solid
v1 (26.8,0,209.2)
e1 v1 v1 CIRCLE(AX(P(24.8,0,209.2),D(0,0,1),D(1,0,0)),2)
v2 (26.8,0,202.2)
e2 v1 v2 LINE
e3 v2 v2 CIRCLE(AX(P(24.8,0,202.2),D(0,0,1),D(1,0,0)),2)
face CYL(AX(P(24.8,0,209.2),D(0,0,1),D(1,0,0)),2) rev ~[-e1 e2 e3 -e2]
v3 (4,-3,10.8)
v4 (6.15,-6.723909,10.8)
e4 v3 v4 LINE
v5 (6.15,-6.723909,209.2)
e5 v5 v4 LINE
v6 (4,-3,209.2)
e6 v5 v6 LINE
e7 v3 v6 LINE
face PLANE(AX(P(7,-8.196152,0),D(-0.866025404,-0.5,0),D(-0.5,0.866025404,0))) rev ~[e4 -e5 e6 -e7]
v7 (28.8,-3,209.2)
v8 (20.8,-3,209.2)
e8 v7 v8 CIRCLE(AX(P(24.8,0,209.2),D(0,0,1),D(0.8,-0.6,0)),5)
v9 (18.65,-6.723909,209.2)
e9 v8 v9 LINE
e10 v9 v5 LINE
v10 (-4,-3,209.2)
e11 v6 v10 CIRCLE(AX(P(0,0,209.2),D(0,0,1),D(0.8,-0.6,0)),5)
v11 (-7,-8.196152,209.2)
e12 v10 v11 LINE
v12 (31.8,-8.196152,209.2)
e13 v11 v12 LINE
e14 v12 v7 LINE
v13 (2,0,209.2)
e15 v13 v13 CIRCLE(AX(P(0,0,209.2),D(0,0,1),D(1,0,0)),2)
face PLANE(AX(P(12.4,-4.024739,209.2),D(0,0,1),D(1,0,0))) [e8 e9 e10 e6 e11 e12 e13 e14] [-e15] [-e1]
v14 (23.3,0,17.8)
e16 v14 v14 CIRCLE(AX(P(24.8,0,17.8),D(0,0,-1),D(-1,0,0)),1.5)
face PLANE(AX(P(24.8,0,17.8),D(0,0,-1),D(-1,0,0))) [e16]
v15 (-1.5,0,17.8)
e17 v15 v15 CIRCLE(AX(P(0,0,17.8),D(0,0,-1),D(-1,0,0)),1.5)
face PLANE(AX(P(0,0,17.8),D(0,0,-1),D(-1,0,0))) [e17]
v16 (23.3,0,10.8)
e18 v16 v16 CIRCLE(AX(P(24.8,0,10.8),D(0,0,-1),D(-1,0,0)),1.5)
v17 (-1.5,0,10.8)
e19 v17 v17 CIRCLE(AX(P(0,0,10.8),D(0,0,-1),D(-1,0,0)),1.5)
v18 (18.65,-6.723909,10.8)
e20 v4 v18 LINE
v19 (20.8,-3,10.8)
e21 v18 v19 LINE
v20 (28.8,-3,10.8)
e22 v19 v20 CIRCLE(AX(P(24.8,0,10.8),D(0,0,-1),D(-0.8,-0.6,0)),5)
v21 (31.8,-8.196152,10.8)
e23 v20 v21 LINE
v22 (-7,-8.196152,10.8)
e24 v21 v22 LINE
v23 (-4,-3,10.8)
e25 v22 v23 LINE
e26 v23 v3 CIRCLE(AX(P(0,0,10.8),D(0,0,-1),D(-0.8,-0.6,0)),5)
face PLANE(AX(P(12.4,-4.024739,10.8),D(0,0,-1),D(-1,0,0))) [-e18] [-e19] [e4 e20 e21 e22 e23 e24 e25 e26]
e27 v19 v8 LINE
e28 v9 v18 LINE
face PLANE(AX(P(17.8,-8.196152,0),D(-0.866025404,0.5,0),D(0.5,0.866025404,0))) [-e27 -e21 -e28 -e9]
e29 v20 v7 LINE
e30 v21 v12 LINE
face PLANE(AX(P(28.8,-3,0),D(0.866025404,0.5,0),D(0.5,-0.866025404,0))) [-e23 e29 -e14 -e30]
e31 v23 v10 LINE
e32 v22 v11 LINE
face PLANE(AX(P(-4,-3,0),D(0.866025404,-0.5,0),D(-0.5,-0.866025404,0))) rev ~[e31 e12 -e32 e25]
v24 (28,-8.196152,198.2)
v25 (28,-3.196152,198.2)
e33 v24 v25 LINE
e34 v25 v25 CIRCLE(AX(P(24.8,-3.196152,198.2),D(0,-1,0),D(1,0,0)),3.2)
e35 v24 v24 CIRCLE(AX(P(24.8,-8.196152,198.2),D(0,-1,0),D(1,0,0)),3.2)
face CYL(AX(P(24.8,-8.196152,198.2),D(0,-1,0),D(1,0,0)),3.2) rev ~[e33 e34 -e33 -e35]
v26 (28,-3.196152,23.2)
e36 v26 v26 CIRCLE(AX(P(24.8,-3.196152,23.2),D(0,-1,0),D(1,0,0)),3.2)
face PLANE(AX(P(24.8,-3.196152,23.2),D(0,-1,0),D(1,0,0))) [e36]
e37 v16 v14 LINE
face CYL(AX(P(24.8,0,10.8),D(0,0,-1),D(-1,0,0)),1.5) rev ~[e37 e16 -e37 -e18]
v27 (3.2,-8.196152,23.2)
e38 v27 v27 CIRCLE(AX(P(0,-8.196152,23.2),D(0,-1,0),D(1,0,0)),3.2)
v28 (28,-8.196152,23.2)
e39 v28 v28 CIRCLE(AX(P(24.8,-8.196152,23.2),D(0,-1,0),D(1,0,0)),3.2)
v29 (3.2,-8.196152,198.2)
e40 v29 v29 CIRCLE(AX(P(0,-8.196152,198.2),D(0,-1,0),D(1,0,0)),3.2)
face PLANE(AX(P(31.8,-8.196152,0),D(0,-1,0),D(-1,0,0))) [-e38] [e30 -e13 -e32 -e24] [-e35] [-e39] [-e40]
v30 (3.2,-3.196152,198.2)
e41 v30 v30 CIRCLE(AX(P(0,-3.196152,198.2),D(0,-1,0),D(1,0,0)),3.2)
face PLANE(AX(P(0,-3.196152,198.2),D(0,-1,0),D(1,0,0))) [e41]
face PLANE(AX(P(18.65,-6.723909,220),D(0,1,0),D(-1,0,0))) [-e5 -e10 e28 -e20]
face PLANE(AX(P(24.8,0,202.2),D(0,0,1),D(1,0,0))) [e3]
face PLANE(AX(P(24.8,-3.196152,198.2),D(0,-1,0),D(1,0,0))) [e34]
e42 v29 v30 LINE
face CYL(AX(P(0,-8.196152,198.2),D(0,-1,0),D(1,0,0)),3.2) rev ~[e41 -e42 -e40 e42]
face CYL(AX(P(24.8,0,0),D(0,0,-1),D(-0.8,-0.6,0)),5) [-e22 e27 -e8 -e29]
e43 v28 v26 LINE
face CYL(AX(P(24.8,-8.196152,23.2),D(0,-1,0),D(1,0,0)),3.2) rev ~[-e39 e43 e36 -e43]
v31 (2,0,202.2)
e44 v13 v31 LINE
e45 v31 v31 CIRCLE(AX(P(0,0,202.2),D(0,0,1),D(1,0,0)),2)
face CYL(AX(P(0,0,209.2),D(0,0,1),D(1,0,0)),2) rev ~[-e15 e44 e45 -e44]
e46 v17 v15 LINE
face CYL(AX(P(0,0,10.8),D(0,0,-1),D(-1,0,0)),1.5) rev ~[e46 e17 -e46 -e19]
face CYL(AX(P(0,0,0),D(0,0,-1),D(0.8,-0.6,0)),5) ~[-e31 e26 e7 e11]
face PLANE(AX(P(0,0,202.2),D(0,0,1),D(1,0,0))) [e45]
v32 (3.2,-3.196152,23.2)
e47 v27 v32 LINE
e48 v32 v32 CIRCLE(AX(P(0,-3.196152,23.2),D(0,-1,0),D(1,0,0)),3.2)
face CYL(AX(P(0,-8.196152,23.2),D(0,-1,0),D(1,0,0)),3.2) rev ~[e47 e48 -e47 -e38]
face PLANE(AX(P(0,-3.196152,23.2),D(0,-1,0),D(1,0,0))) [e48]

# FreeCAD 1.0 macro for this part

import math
import FreeCAD as App
import Part
import Sketcher

V = App.Vector
Q = App.Units.Quantity

doc = App.newDocument("Part")
params = doc.addObject("Spreadsheet::Sheet", "Params")
for row, (alias, value) in enumerate([
    ("sketch1_radius", "5 mm"),
    ("sketch1_width", "14 mm"),
    ("sketch1_length", "6 mm"),
    ("pad1_length", "220 mm"),
    ("sketch2_width", "12.5 mm"),
    ("pad2_length", "220 mm"),
    ("sketch3_diameter", "2.74 mm"),
    ("pocket1_length", "7 mm"),
    ("sketch4_diameter", "2.74 mm"),
    ("pocket2_length", "7 mm"),
    ("sketch5_radius", "5 mm"),
    ("sketch5_length", "6 mm"),
    ("sketch5_width", "38.8 mm"),
    ("sketch5_width2", "12.5 mm"),
    ("pocket3_length", "10.8 mm"),
    ("sketch6_radius", "5 mm"),
    ("sketch6_length", "6 mm"),
    ("sketch6_width", "12.5 mm"),
    ("sketch6_width2", "38.8 mm"),
    ("pocket4_length", "10.8 mm"),
    ("sketch7_diameter", "4 mm"),
    ("pocket5_length", "7 mm"),
    ("sketch8_diameter", "3 mm"),
    ("pocket6_length", "7 mm"),
    ("sketch9_diameter", "6.4 mm"),
    ("pocket7_length", "5 mm"),
], start=1):
    params.set(f"A{row}", alias)
    params.set(f"B{row}", "=" + value)
    params.setAlias(f"B{row}", alias)

body = doc.addObject("PartDesign::Body", "Body")
body.AllowCompound = True

# Sketch on XY plane
sketch1 = body.newObject("Sketcher::SketchObject", "Sketch")
sketch1.AttachmentSupport = (doc.getObject("XY_Plane"), [""])
sketch1.MapMode = "FlatFace"
sketch1.addGeometry(Part.LineSegment(V(-4, -3, 0), V(-7, -8, 0)), False)
sketch1.addGeometry(Part.LineSegment(V(-7, -8, 0), V(7, -8, 0)), False)
sketch1.addGeometry(Part.LineSegment(V(7, -8, 0), V(4, -3, 0)), False)
sketch1.addGeometry(Part.ArcOfCircle(Part.Circle(V(0, 0, 0), V(0, 0, 1), 5), math.radians(-37), math.radians(217)), False)
sketch1.addGeometry(Part.LineSegment(V(32, -8, 0), V(29, -3, 0)), False)
sketch1.addGeometry(Part.ArcOfCircle(Part.Circle(V(25, 0, 0), V(0, 0, 1), 5), math.radians(-37), math.radians(217)), False)
sketch1.addGeometry(Part.LineSegment(V(21, -3, 0), V(18, -8, 0)), False)
sketch1.addGeometry(Part.LineSegment(V(18, -8, 0), V(32, -8, 0)), False)
sketch1.addConstraint(Sketcher.Constraint("Coincident", 0, 2, 1, 1))
sketch1.addConstraint(Sketcher.Constraint("Coincident", 1, 2, 2, 1))
sketch1.addConstraint(Sketcher.Constraint("Coincident", 2, 2, 3, 1))
sketch1.addConstraint(Sketcher.Constraint("Coincident", 3, 2, 0, 1))
sketch1.addConstraint(Sketcher.Constraint("Coincident", 4, 2, 5, 1))
sketch1.addConstraint(Sketcher.Constraint("Coincident", 5, 2, 6, 1))
sketch1.addConstraint(Sketcher.Constraint("Coincident", 6, 2, 7, 1))
sketch1.addConstraint(Sketcher.Constraint("Coincident", 7, 2, 4, 1))
sketch1.addConstraint(Sketcher.Constraint("Horizontal", 1))
sketch1.addConstraint(Sketcher.Constraint("Horizontal", 7))
sketch1.addConstraint(Sketcher.Constraint("Coincident", 3, 3, -1, 1))
sketch1.addConstraint(Sketcher.Constraint("Equal", 3, 5))
sketch1.addConstraint(Sketcher.Constraint("PointOnObject", 5, 3, -1))
sketch1.addConstraint(Sketcher.Constraint("Parallel", 2, 4))
sketch1.addConstraint(Sketcher.Constraint("Parallel", 0, 6))
sketch1.addConstraint(Sketcher.Constraint("Horizontal", 2, 2, 3, 2))
sketch1.addConstraint(Sketcher.Constraint("Horizontal", 3, 2, 4, 2))
sketch1.addConstraint(Sketcher.Constraint("Horizontal", 4, 2, 5, 2))
sketch1.addConstraint(Sketcher.Constraint("Horizontal", 1, 2, 6, 2))
sketch1.addConstraint(Sketcher.Constraint("Equal", 0, 2))
sketch1.addConstraint(Sketcher.Constraint("Radius", 3, 5.0))
sketch1.addConstraint(Sketcher.Constraint("DistanceX", 1, 1, 1, 2, 14.0))
sketch1.addConstraint(Sketcher.Constraint("Angle", 0, Q("-120 deg")))
sketch1.addConstraint(Sketcher.Constraint("Distance", 0, 6.0))
sketch1.addConstraint(Sketcher.Constraint("DistanceX", -1, 1, 5, 3, 24.8))
sketch1.setExpression("Constraints[20]", "Params.sketch1_radius")
sketch1.setExpression("Constraints[21]", "Params.sketch1_width")
sketch1.setExpression("Constraints[23]", "Params.sketch1_length")
pad1 = body.newObject("PartDesign::Pad", "Pad")
pad1.Profile = sketch1
pad1.setExpression("Length", "Params.pad1_length")

# Sketch on XY plane
sketch2 = body.newObject("Sketcher::SketchObject", "Sketch001")
sketch2.AttachmentSupport = (doc.getObject("XY_Plane"), [""])
sketch2.MapMode = "FlatFace"
sketch2.AttachmentOffset = App.Placement(V(0, 0, 220), App.Rotation())
sketch2.addGeometry(Part.LineSegment(V(18.6, -8.2, 0), V(18.6, -6.7, 0)), False)
sketch2.addGeometry(Part.LineSegment(V(18.6, -6.7, 0), V(6.2, -6.7, 0)), False)
sketch2.addGeometry(Part.LineSegment(V(6.2, -6.7, 0), V(6.2, -8.2, 0)), False)
sketch2.addGeometry(Part.LineSegment(V(6.2, -8.2, 0), V(18.6, -8.2, 0)), False)
sketch2.addConstraint(Sketcher.Constraint("Coincident", 0, 2, 1, 1))
sketch2.addConstraint(Sketcher.Constraint("Coincident", 1, 2, 2, 1))
sketch2.addConstraint(Sketcher.Constraint("Coincident", 2, 2, 3, 1))
sketch2.addConstraint(Sketcher.Constraint("Coincident", 3, 2, 0, 1))
sketch2.addConstraint(Sketcher.Constraint("Vertical", 0))
sketch2.addConstraint(Sketcher.Constraint("Horizontal", 1))
sketch2.addConstraint(Sketcher.Constraint("Vertical", 2))
sketch2.addConstraint(Sketcher.Constraint("Horizontal", 3))
sketch2.addConstraint(Sketcher.Constraint("DistanceX", 1, 2, 1, 1, 12.5))
sketch2.addConstraint(Sketcher.Constraint("DistanceX", -1, 1, 0, 2, 18.65))
sketch2.addConstraint(Sketcher.Constraint("DistanceY", 0, 1, 0, 2, 1.472243))
sketch2.addConstraint(Sketcher.Constraint("DistanceY", 0, 2, -1, 1, 6.723909))
sketch2.setExpression("Constraints[8]", "Params.sketch2_width")
pad2 = body.newObject("PartDesign::Pad", "Pad001")
pad2.Profile = sketch2
pad2.setExpression("Length", "Params.pad2_length")
pad2.Reversed = True

# Sketch on XY plane
sketch3 = body.newObject("Sketcher::SketchObject", "Sketch002")
sketch3.AttachmentSupport = (doc.getObject("XY_Plane"), [""])
sketch3.MapMode = "FlatFace"
sketch3.addGeometry(Part.Circle(V(0, 0, 0), V(0, 0, 1), 1.4), False)
sketch3.addGeometry(Part.Circle(V(24.8, 0, 0), V(0, 0, 1), 1.4), False)
sketch3.addConstraint(Sketcher.Constraint("Coincident", 0, 3, -1, 1))
sketch3.addConstraint(Sketcher.Constraint("Equal", 0, 1))
sketch3.addConstraint(Sketcher.Constraint("PointOnObject", 1, 3, -1))
sketch3.addConstraint(Sketcher.Constraint("Diameter", 0, 2.74))
sketch3.addConstraint(Sketcher.Constraint("DistanceX", -1, 1, 1, 3, 24.8))
sketch3.setExpression("Constraints[3]", "Params.sketch3_diameter")
pocket1 = body.newObject("PartDesign::Pocket", "Pocket")
pocket1.Profile = sketch3
pocket1.setExpression("Length", "Params.pocket1_length")
pocket1.Reversed = True

# Sketch on XY plane
sketch4 = body.newObject("Sketcher::SketchObject", "Sketch003")
sketch4.AttachmentSupport = (doc.getObject("XY_Plane"), [""])
sketch4.MapMode = "FlatFace"
sketch4.AttachmentOffset = App.Placement(V(0, 0, 220), App.Rotation())
sketch4.addGeometry(Part.Circle(V(0, 0, 0), V(0, 0, 1), 1.4), False)
sketch4.addGeometry(Part.Circle(V(24.8, 0, 0), V(0, 0, 1), 1.4), False)
sketch4.addConstraint(Sketcher.Constraint("Coincident", 0, 3, -1, 1))
sketch4.addConstraint(Sketcher.Constraint("Equal", 0, 1))
sketch4.addConstraint(Sketcher.Constraint("PointOnObject", 1, 3, -1))
sketch4.addConstraint(Sketcher.Constraint("Diameter", 0, 2.74))
sketch4.addConstraint(Sketcher.Constraint("DistanceX", -1, 1, 1, 3, 24.8))
sketch4.setExpression("Constraints[3]", "Params.sketch4_diameter")
pocket2 = body.newObject("PartDesign::Pocket", "Pocket001")
pocket2.Profile = sketch4
pocket2.setExpression("Length", "Params.pocket2_length")

# Sketch on XY plane
sketch5 = body.newObject("Sketcher::SketchObject", "Sketch004")
sketch5.AttachmentSupport = (doc.getObject("XY_Plane"), [""])
sketch5.MapMode = "FlatFace"
sketch5.addGeometry(Part.LineSegment(V(28.8, -3, 0), V(31.8, -8.2, 0)), False)
sketch5.addGeometry(Part.LineSegment(V(31.8, -8.2, 0), V(-7, -8.2, 0)), False)
sketch5.addGeometry(Part.LineSegment(V(-7, -8.2, 0), V(-4, -3, 0)), False)
sketch5.addGeometry(Part.ArcOfCircle(Part.Circle(V(0, 0, 0), V(0, 0, 1), 5), math.radians(-37), math.radians(217)), False)
sketch5.addGeometry(Part.LineSegment(V(4, -3, 0), V(6.2, -6.7, 0)), False)
sketch5.addGeometry(Part.LineSegment(V(6.2, -6.7, 0), V(18.6, -6.7, 0)), False)
sketch5.addGeometry(Part.LineSegment(V(18.6, -6.7, 0), V(20.8, -3, 0)), False)
sketch5.addGeometry(Part.ArcOfCircle(Part.Circle(V(24.8, 0, 0), V(0, 0, 1), 5), math.radians(-37), math.radians(217)), False)
sketch5.addConstraint(Sketcher.Constraint("Coincident", 0, 2, 1, 1))
sketch5.addConstraint(Sketcher.Constraint("Coincident", 1, 2, 2, 1))
sketch5.addConstraint(Sketcher.Constraint("Coincident", 2, 2, 3, 2))
sketch5.addConstraint(Sketcher.Constraint("Coincident", 3, 1, 4, 1))
sketch5.addConstraint(Sketcher.Constraint("Coincident", 4, 2, 5, 1))
sketch5.addConstraint(Sketcher.Constraint("Coincident", 5, 2, 6, 1))
sketch5.addConstraint(Sketcher.Constraint("Coincident", 6, 2, 7, 2))
sketch5.addConstraint(Sketcher.Constraint("Coincident", 7, 1, 0, 1))
sketch5.addConstraint(Sketcher.Constraint("Horizontal", 1))
sketch5.addConstraint(Sketcher.Constraint("Horizontal", 5))
sketch5.addConstraint(Sketcher.Constraint("Coincident", 3, 3, -1, 1))
sketch5.addConstraint(Sketcher.Constraint("Equal", 3, 7))
sketch5.addConstraint(Sketcher.Constraint("PointOnObject", 7, 3, -1))
sketch5.addConstraint(Sketcher.Constraint("Parallel", 0, 4))
sketch5.addConstraint(Sketcher.Constraint("Parallel", 2, 6))
sketch5.addConstraint(Sketcher.Constraint("Horizontal", 2, 2, 3, 1))
sketch5.addConstraint(Sketcher.Constraint("Horizontal", 3, 1, 6, 2))
sketch5.addConstraint(Sketcher.Constraint("Horizontal", 6, 2, 7, 1))
sketch5.addConstraint(Sketcher.Constraint("Equal", 0, 2))
sketch5.addConstraint(Sketcher.Constraint("Radius", 3, 5.0))
sketch5.addConstraint(Sketcher.Constraint("Angle", 0, Q("-60 deg")))
sketch5.addConstraint(Sketcher.Constraint("Distance", 0, 6.0))
sketch5.addConstraint(Sketcher.Constraint("DistanceX", 1, 2, 1, 1, 38.8))
sketch5.addConstraint(Sketcher.Constraint("DistanceX", 5, 1, 5, 2, 12.5))
sketch5.addConstraint(Sketcher.Constraint("DistanceX", 1, 2, -1, 1, 7.0))
sketch5.setExpression("Constraints[19]", "Params.sketch5_radius")
sketch5.setExpression("Constraints[21]", "Params.sketch5_length")
sketch5.setExpression("Constraints[22]", "Params.sketch5_width")
sketch5.setExpression("Constraints[23]", "Params.sketch5_width2")
pocket3 = body.newObject("PartDesign::Pocket", "Pocket002")
pocket3.Profile = sketch5
pocket3.setExpression("Length", "Params.pocket3_length")
pocket3.Reversed = True

# Sketch on XY plane
sketch6 = body.newObject("Sketcher::SketchObject", "Sketch005")
sketch6.AttachmentSupport = (doc.getObject("XY_Plane"), [""])
sketch6.MapMode = "FlatFace"
sketch6.AttachmentOffset = App.Placement(V(0, 0, 220), App.Rotation())
sketch6.addGeometry(Part.LineSegment(V(20.8, -3, 0), V(18.6, -6.7, 0)), False)
sketch6.addGeometry(Part.LineSegment(V(18.6, -6.7, 0), V(6.2, -6.7, 0)), False)
sketch6.addGeometry(Part.LineSegment(V(6.2, -6.7, 0), V(4, -3, 0)), False)
sketch6.addGeometry(Part.ArcOfCircle(Part.Circle(V(0, 0, 0), V(0, 0, 1), 5), math.radians(-37), math.radians(217)), False)
sketch6.addGeometry(Part.LineSegment(V(-4, -3, 0), V(-7, -8.2, 0)), False)
sketch6.addGeometry(Part.LineSegment(V(-7, -8.2, 0), V(31.8, -8.2, 0)), False)
sketch6.addGeometry(Part.LineSegment(V(31.8, -8.2, 0), V(28.8, -3, 0)), False)
sketch6.addGeometry(Part.ArcOfCircle(Part.Circle(V(24.8, 0, 0), V(0, 0, 1), 5), math.radians(-37), math.radians(217)), False)
sketch6.addConstraint(Sketcher.Constraint("Coincident", 0, 2, 1, 1))
sketch6.addConstraint(Sketcher.Constraint("Coincident", 1, 2, 2, 1))
sketch6.addConstraint(Sketcher.Constraint("Coincident", 2, 2, 3, 1))
sketch6.addConstraint(Sketcher.Constraint("Coincident", 3, 2, 4, 1))
sketch6.addConstraint(Sketcher.Constraint("Coincident", 4, 2, 5, 1))
sketch6.addConstraint(Sketcher.Constraint("Coincident", 5, 2, 6, 1))
sketch6.addConstraint(Sketcher.Constraint("Coincident", 6, 2, 7, 1))
sketch6.addConstraint(Sketcher.Constraint("Coincident", 7, 2, 0, 1))
sketch6.addConstraint(Sketcher.Constraint("Horizontal", 1))
sketch6.addConstraint(Sketcher.Constraint("Horizontal", 5))
sketch6.addConstraint(Sketcher.Constraint("Coincident", 3, 3, -1, 1))
sketch6.addConstraint(Sketcher.Constraint("Equal", 3, 7))
sketch6.addConstraint(Sketcher.Constraint("PointOnObject", 7, 3, -1))
sketch6.addConstraint(Sketcher.Constraint("Parallel", 0, 4))
sketch6.addConstraint(Sketcher.Constraint("Parallel", 2, 6))
sketch6.addConstraint(Sketcher.Constraint("Horizontal", 2, 2, 3, 2))
sketch6.addConstraint(Sketcher.Constraint("Horizontal", 3, 2, 6, 2))
sketch6.addConstraint(Sketcher.Constraint("Horizontal", 6, 2, 7, 2))
sketch6.addConstraint(Sketcher.Constraint("Equal", 0, 2))
sketch6.addConstraint(Sketcher.Constraint("Radius", 3, 5.0))
sketch6.addConstraint(Sketcher.Constraint("Angle", 0, Q("-120 deg")))
sketch6.addConstraint(Sketcher.Constraint("Distance", 4, 6.0))
sketch6.addConstraint(Sketcher.Constraint("DistanceX", 1, 2, 1, 1, 12.5))
sketch6.addConstraint(Sketcher.Constraint("DistanceX", 5, 1, 5, 2, 38.8))
sketch6.addConstraint(Sketcher.Constraint("DistanceX", -1, 1, 2, 2, 4.0))
sketch6.setExpression("Constraints[19]", "Params.sketch6_radius")
sketch6.setExpression("Constraints[21]", "Params.sketch6_length")
sketch6.setExpression("Constraints[22]", "Params.sketch6_width")
sketch6.setExpression("Constraints[23]", "Params.sketch6_width2")
pocket4 = body.newObject("PartDesign::Pocket", "Pocket003")
pocket4.Profile = sketch6
pocket4.setExpression("Length", "Params.pocket4_length")

# Sketch on XY plane
sketch7 = body.newObject("Sketcher::SketchObject", "Sketch006")
sketch7.AttachmentSupport = (doc.getObject("XY_Plane"), [""])
sketch7.MapMode = "FlatFace"
sketch7.AttachmentOffset = App.Placement(V(0, 0, 209.2), App.Rotation())
sketch7.addGeometry(Part.Circle(V(0, 0, 0), V(0, 0, 1), 2), False)
sketch7.addGeometry(Part.Circle(V(24.8, 0, 0), V(0, 0, 1), 2), False)
sketch7.addConstraint(Sketcher.Constraint("Coincident", 0, 3, -1, 1))
sketch7.addConstraint(Sketcher.Constraint("Equal", 0, 1))
sketch7.addConstraint(Sketcher.Constraint("PointOnObject", 1, 3, -1))
sketch7.addConstraint(Sketcher.Constraint("Diameter", 0, 4.0))
sketch7.addConstraint(Sketcher.Constraint("DistanceX", -1, 1, 1, 3, 24.8))
sketch7.setExpression("Constraints[3]", "Params.sketch7_diameter")
pocket5 = body.newObject("PartDesign::Pocket", "Pocket004")
pocket5.Profile = sketch7
pocket5.setExpression("Length", "Params.pocket5_length")

# Sketch on XY plane
sketch8 = body.newObject("Sketcher::SketchObject", "Sketch007")
sketch8.AttachmentSupport = (doc.getObject("XY_Plane"), [""])
sketch8.MapMode = "FlatFace"
sketch8.AttachmentOffset = App.Placement(V(0, 0, 10.8), App.Rotation())
sketch8.addGeometry(Part.Circle(V(0, 0, 0), V(0, 0, 1), 1.5), False)
sketch8.addGeometry(Part.Circle(V(24.8, 0, 0), V(0, 0, 1), 1.5), False)
sketch8.addConstraint(Sketcher.Constraint("Coincident", 0, 3, -1, 1))
sketch8.addConstraint(Sketcher.Constraint("Equal", 0, 1))
sketch8.addConstraint(Sketcher.Constraint("PointOnObject", 1, 3, -1))
sketch8.addConstraint(Sketcher.Constraint("Diameter", 0, 3.0))
sketch8.addConstraint(Sketcher.Constraint("DistanceX", -1, 1, 1, 3, 24.8))
sketch8.setExpression("Constraints[3]", "Params.sketch8_diameter")
pocket6 = body.newObject("PartDesign::Pocket", "Pocket005")
pocket6.Profile = sketch8
pocket6.setExpression("Length", "Params.pocket6_length")
pocket6.Reversed = True

# Sketch on XZ plane
sketch9 = body.newObject("Sketcher::SketchObject", "Sketch008")
sketch9.AttachmentSupport = (doc.getObject("XZ_Plane"), [""])
sketch9.MapMode = "FlatFace"
sketch9.AttachmentOffset = App.Placement(V(0, 0, 8.196152), App.Rotation())
sketch9.addGeometry(Part.Circle(V(0, 23.2, 0), V(0, 0, 1), 3.2), False)
sketch9.addGeometry(Part.Circle(V(24.8, 23.2, 0), V(0, 0, 1), 3.2), False)
sketch9.addGeometry(Part.Circle(V(0, 198.2, 0), V(0, 0, 1), 3.2), False)
sketch9.addGeometry(Part.Circle(V(24.8, 198.2, 0), V(0, 0, 1), 3.2), False)
sketch9.addConstraint(Sketcher.Constraint("Equal", 0, 1))
sketch9.addConstraint(Sketcher.Constraint("Equal", 1, 2))
sketch9.addConstraint(Sketcher.Constraint("Equal", 2, 3))
sketch9.addConstraint(Sketcher.Constraint("PointOnObject", 0, 3, -2))
sketch9.addConstraint(Sketcher.Constraint("PointOnObject", 2, 3, -2))
sketch9.addConstraint(Sketcher.Constraint("Horizontal", 0, 3, 1, 3))
sketch9.addConstraint(Sketcher.Constraint("Horizontal", 2, 3, 3, 3))
sketch9.addConstraint(Sketcher.Constraint("Vertical", 1, 3, 3, 3))
sketch9.addConstraint(Sketcher.Constraint("Diameter", 0, 6.4))
sketch9.addConstraint(Sketcher.Constraint("DistanceY", 0, 3, 2, 3, 175.0))
sketch9.addConstraint(Sketcher.Constraint("DistanceY", -1, 1, 0, 3, 23.2))
sketch9.addConstraint(Sketcher.Constraint("DistanceX", -1, 1, 1, 3, 24.8))
sketch9.setExpression("Constraints[8]", "Params.sketch9_diameter")
pocket7 = body.newObject("PartDesign::Pocket", "Pocket006")
pocket7.Profile = sketch9
pocket7.setExpression("Length", "Params.pocket7_length")

doc.recompute()
